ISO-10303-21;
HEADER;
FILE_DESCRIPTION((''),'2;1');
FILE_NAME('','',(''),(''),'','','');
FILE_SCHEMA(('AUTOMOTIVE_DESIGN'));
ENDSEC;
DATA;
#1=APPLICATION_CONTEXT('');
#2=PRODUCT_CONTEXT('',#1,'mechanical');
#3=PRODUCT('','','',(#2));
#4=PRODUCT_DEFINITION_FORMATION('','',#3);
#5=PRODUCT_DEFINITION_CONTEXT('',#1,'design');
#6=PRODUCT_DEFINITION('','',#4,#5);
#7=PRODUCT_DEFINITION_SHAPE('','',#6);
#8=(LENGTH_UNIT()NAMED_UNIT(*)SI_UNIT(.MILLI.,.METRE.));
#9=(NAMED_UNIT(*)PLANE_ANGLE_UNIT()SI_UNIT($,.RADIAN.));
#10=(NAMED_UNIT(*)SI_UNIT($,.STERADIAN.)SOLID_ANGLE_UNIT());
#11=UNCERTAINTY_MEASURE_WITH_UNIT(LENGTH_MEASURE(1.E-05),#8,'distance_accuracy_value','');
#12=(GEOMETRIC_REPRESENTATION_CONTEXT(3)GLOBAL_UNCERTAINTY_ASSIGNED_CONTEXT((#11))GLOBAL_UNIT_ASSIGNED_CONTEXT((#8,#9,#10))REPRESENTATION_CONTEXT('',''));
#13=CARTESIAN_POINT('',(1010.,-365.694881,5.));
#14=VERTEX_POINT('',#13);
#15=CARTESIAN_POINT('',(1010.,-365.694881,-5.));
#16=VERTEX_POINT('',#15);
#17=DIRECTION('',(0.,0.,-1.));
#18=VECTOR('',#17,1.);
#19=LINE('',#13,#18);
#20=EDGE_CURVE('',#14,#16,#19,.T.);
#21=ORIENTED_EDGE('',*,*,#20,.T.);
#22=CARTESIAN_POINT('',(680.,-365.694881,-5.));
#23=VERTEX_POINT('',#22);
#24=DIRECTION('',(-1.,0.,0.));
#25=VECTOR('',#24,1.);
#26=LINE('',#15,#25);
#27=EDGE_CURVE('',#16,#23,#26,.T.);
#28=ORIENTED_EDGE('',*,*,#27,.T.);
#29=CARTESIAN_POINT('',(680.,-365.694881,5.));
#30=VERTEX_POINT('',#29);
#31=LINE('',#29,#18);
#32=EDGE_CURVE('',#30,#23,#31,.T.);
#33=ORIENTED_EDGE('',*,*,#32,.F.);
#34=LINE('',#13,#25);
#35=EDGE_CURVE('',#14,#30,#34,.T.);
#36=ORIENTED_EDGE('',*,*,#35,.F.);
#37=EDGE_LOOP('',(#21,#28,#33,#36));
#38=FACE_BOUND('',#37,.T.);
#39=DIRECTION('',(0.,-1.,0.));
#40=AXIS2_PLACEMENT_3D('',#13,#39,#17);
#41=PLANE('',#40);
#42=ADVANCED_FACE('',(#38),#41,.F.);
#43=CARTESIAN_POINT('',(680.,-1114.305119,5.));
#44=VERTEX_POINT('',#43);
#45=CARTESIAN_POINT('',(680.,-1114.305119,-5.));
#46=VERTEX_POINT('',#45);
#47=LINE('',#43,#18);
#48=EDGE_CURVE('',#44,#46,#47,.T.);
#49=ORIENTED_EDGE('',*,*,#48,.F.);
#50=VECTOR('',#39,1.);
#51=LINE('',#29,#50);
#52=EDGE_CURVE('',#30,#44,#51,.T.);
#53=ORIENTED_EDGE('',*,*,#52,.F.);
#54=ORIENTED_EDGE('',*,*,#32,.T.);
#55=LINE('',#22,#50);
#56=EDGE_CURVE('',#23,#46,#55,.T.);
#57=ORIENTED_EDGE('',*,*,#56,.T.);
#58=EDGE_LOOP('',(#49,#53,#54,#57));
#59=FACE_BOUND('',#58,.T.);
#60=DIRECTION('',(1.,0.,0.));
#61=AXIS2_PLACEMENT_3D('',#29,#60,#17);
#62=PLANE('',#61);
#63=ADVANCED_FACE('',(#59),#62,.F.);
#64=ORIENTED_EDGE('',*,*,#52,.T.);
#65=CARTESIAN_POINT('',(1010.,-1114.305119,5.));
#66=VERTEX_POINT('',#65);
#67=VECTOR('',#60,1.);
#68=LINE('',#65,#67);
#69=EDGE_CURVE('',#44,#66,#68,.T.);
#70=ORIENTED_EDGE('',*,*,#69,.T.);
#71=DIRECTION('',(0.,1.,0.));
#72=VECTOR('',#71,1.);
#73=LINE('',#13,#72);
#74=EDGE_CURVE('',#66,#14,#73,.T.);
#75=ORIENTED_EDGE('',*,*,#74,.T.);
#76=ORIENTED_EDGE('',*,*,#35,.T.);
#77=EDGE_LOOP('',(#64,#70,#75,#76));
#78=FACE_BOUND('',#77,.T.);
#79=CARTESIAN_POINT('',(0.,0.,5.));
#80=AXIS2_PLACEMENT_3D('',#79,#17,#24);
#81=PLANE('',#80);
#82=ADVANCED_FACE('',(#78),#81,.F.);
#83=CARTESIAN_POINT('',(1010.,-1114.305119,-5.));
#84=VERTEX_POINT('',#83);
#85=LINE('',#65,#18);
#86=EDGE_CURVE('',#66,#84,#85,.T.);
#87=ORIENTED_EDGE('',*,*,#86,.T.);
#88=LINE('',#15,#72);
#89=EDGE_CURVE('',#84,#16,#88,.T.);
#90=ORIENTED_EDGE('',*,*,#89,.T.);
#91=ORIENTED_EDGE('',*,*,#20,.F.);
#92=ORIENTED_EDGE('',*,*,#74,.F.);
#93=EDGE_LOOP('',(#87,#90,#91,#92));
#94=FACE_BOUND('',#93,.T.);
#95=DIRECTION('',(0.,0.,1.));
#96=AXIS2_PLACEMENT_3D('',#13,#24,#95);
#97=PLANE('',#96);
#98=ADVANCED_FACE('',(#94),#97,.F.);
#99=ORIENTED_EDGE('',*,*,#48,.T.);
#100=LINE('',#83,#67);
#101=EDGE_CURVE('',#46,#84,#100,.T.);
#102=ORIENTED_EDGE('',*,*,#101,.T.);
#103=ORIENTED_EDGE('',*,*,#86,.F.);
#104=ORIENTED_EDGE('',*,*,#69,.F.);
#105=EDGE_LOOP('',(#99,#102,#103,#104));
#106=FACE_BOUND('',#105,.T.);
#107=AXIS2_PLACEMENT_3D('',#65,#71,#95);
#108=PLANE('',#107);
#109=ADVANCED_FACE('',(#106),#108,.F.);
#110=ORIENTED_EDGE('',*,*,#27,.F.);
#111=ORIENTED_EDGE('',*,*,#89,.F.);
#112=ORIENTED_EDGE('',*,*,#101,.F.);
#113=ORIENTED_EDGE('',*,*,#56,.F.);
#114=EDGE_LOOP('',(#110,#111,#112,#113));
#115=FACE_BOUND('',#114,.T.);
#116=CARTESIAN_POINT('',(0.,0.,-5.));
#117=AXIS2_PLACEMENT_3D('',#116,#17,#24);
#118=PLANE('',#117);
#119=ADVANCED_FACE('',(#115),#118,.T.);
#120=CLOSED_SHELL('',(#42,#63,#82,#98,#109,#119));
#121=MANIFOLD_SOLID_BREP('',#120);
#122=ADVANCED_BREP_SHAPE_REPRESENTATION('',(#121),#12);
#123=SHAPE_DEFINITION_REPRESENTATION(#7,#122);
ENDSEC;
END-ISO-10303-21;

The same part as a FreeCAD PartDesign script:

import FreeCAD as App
import Part
import Sketcher
Q = App.Units.Quantity


def add_polygon(sketch, points):
    """Adds a closed chain of lines whose ends are joined by coincident constraints."""
    first, n = sketch.GeometryCount, len(points)
    for a, b in zip(points, points[1:] + points[:1]):
        sketch.addGeometry(Part.LineSegment(App.Vector(*a, 0), App.Vector(*b, 0)), False)
    for i in range(n):
        sketch.addConstraint(Sketcher.Constraint("Coincident", first + i, 2, first + (i + 1) % n, 1))

doc = App.newDocument("Part")
params = doc.addObject("Spreadsheet::Sheet", "Params")
for row, (alias, value) in enumerate([
    ("sketch1_width", "330 mm"),
    ("pad1_length", "10 mm"),
], start=1):
    params.set(f"A{row}", alias)
    params.set(f"B{row}", "=" + value)
    params.setAlias(f"B{row}", alias)

body = doc.addObject("PartDesign::Body", "Body")

# Sketch on XY plane
sketch1 = body.newObject("Sketcher::SketchObject", "Sketch")
sketch1.AttachmentSupport = (doc.getObject("XY_Plane"), [""])
sketch1.MapMode = "FlatFace"
add_polygon(sketch1, [(680, -366), (680, -1114), (1010, -1114), (1010, -366)])  # lines 0-3
sketch1.addConstraint([
    Sketcher.Constraint("Vertical", 0),
    Sketcher.Constraint("Horizontal", 1),
    Sketcher.Constraint("Vertical", 2),
    Sketcher.Constraint("Horizontal", 3),
    Sketcher.Constraint("DistanceX", 1, 1, 1, 2, Q("330 mm")),
    Sketcher.Constraint("DistanceX", -1, 1, 0, 2, Q("680 mm")),
    Sketcher.Constraint("DistanceY", 0, 2, 0, 1, Q("748.610239 mm")),
    Sketcher.Constraint("DistanceY", 0, 2, -1, 1, Q("1114.305119 mm")),
])
sketch1.setExpression("Constraints[8]", "Params.sketch1_width")
pad1 = body.newObject("PartDesign::Pad", "Pad")
pad1.Profile = sketch1
pad1.setExpression("Length", "Params.pad1_length")
pad1.Midplane = True

doc.recompute()
